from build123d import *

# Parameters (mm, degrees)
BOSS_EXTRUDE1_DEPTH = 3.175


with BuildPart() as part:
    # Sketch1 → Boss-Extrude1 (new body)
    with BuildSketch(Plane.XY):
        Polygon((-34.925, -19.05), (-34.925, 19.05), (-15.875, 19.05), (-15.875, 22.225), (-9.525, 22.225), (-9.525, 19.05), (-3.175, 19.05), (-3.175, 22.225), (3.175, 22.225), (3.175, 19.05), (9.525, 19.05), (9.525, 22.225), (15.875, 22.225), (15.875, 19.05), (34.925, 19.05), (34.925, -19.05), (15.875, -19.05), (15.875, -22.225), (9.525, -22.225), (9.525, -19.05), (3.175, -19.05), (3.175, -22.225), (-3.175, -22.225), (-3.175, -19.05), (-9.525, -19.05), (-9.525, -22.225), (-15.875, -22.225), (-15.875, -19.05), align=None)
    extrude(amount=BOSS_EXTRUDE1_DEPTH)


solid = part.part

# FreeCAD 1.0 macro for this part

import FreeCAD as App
import Part
import Sketcher
Q = App.Units.Quantity

doc = App.newDocument("Part")
body = doc.addObject("PartDesign::Body", "Body")

# Sketch on XY plane
sketch1 = body.newObject("Sketcher::SketchObject", "Sketch")
sketch1.AttachmentSupport = (doc.getObject("XY_Plane"), [""])
sketch1.MapMode = "FlatFace"
sketch1.addGeometry([
    Part.LineSegment(App.Vector(-34.925, 19.05, 0), App.Vector(-34.925, -19.05, 0)),  # 0
    Part.LineSegment(App.Vector(-34.925, -19.05, 0), App.Vector(-15.875, -19.05, 0)),  # 1
    Part.LineSegment(App.Vector(-15.875, -19.05, 0), App.Vector(-15.875, -22.225, 0)),  # 2
    Part.LineSegment(App.Vector(-15.875, -22.225, 0), App.Vector(-9.525, -22.225, 0)),  # 3
    Part.LineSegment(App.Vector(-9.525, -22.225, 0), App.Vector(-9.525, -19.05, 0)),  # 4
    Part.LineSegment(App.Vector(-9.525, -19.05, 0), App.Vector(-3.175, -19.05, 0)),  # 5
    Part.LineSegment(App.Vector(-3.175, -19.05, 0), App.Vector(-3.175, -22.225, 0)),  # 6
    Part.LineSegment(App.Vector(-3.175, -22.225, 0), App.Vector(3.175, -22.225, 0)),  # 7
    Part.LineSegment(App.Vector(3.175, -22.225, 0), App.Vector(3.175, -19.05, 0)),  # 8
    Part.LineSegment(App.Vector(3.175, -19.05, 0), App.Vector(9.525, -19.05, 0)),  # 9
    Part.LineSegment(App.Vector(9.525, -19.05, 0), App.Vector(9.525, -22.225, 0)),  # 10
    Part.LineSegment(App.Vector(9.525, -22.225, 0), App.Vector(15.875, -22.225, 0)),  # 11
    Part.LineSegment(App.Vector(15.875, -22.225, 0), App.Vector(15.875, -19.05, 0)),  # 12
    Part.LineSegment(App.Vector(15.875, -19.05, 0), App.Vector(34.925, -19.05, 0)),  # 13
    Part.LineSegment(App.Vector(34.925, -19.05, 0), App.Vector(34.925, 19.05, 0)),  # 14
    Part.LineSegment(App.Vector(34.925, 19.05, 0), App.Vector(15.875, 19.05, 0)),  # 15
    Part.LineSegment(App.Vector(15.875, 19.05, 0), App.Vector(15.875, 22.225, 0)),  # 16
    Part.LineSegment(App.Vector(15.875, 22.225, 0), App.Vector(9.525, 22.225, 0)),  # 17
    Part.LineSegment(App.Vector(9.525, 22.225, 0), App.Vector(9.525, 19.05, 0)),  # 18
    Part.LineSegment(App.Vector(9.525, 19.05, 0), App.Vector(3.175, 19.05, 0)),  # 19
    Part.LineSegment(App.Vector(3.175, 19.05, 0), App.Vector(3.175, 22.225, 0)),  # 20
    Part.LineSegment(App.Vector(3.175, 22.225, 0), App.Vector(-3.175, 22.225, 0)),  # 21
    Part.LineSegment(App.Vector(-3.175, 22.225, 0), App.Vector(-3.175, 19.05, 0)),  # 22
    Part.LineSegment(App.Vector(-3.175, 19.05, 0), App.Vector(-9.525, 19.05, 0)),  # 23
    Part.LineSegment(App.Vector(-9.525, 19.05, 0), App.Vector(-9.525, 22.225, 0)),  # 24
    Part.LineSegment(App.Vector(-9.525, 22.225, 0), App.Vector(-15.875, 22.225, 0)),  # 25
    Part.LineSegment(App.Vector(-15.875, 22.225, 0), App.Vector(-15.875, 19.05, 0)),  # 26
    Part.LineSegment(App.Vector(-15.875, 19.05, 0), App.Vector(-34.925, 19.05, 0)),  # 27
], False)
sketch1.addConstraint([
    Sketcher.Constraint("Coincident", 0, 2, 1, 1),
    Sketcher.Constraint("Coincident", 1, 2, 2, 1),
    Sketcher.Constraint("Coincident", 2, 2, 3, 1),
    Sketcher.Constraint("Coincident", 3, 2, 4, 1),
    Sketcher.Constraint("Coincident", 4, 2, 5, 1),
    Sketcher.Constraint("Coincident", 5, 2, 6, 1),
    Sketcher.Constraint("Coincident", 6, 2, 7, 1),
    Sketcher.Constraint("Coincident", 7, 2, 8, 1),
    Sketcher.Constraint("Coincident", 8, 2, 9, 1),
    Sketcher.Constraint("Coincident", 9, 2, 10, 1),
    Sketcher.Constraint("Coincident", 10, 2, 11, 1),
    Sketcher.Constraint("Coincident", 11, 2, 12, 1),
    Sketcher.Constraint("Coincident", 12, 2, 13, 1),
    Sketcher.Constraint("Coincident", 13, 2, 14, 1),
    Sketcher.Constraint("Coincident", 14, 2, 15, 1),
    Sketcher.Constraint("Coincident", 15, 2, 16, 1),
    Sketcher.Constraint("Coincident", 16, 2, 17, 1),
    Sketcher.Constraint("Coincident", 17, 2, 18, 1),
    Sketcher.Constraint("Coincident", 18, 2, 19, 1),
    Sketcher.Constraint("Coincident", 19, 2, 20, 1),
    Sketcher.Constraint("Coincident", 20, 2, 21, 1),
    Sketcher.Constraint("Coincident", 21, 2, 22, 1),
    Sketcher.Constraint("Coincident", 22, 2, 23, 1),
    Sketcher.Constraint("Coincident", 23, 2, 24, 1),
    Sketcher.Constraint("Coincident", 24, 2, 25, 1),
    Sketcher.Constraint("Coincident", 25, 2, 26, 1),
    Sketcher.Constraint("Coincident", 26, 2, 27, 1),
    Sketcher.Constraint("Coincident", 27, 2, 0, 1),
    Sketcher.Constraint("Vertical", 0),
    Sketcher.Constraint("Horizontal", 1),
    Sketcher.Constraint("Vertical", 2),
    Sketcher.Constraint("Horizontal", 3),
    Sketcher.Constraint("Vertical", 4),
    Sketcher.Constraint("Horizontal", 5),
    Sketcher.Constraint("Vertical", 6),
    Sketcher.Constraint("Horizontal", 7),
    Sketcher.Constraint("Vertical", 8),
    Sketcher.Constraint("Horizontal", 9),
    Sketcher.Constraint("Vertical", 10),
    Sketcher.Constraint("Horizontal", 11),
    Sketcher.Constraint("Vertical", 12),
    Sketcher.Constraint("Horizontal", 13),
    Sketcher.Constraint("Vertical", 14),
    Sketcher.Constraint("Horizontal", 15),
    Sketcher.Constraint("Vertical", 16),
    Sketcher.Constraint("Horizontal", 17),
    Sketcher.Constraint("Vertical", 18),
    Sketcher.Constraint("Horizontal", 19),
    Sketcher.Constraint("Vertical", 20),
    Sketcher.Constraint("Horizontal", 21),
    Sketcher.Constraint("Vertical", 22),
    Sketcher.Constraint("Horizontal", 23),
    Sketcher.Constraint("Vertical", 24),
    Sketcher.Constraint("Horizontal", 25),
    Sketcher.Constraint("Vertical", 26),
    Sketcher.Constraint("Horizontal", 27),
    Sketcher.Constraint("Symmetric", 0, 2, 14, 2, -1, 1),
    Sketcher.Constraint("Symmetric", 2, 2, 16, 2, -1, 1),
    Sketcher.Constraint("Symmetric", 4, 2, 18, 2, -1, 1),
    Sketcher.Constraint("Symmetric", 6, 2, 20, 2, -1, 1),
    Sketcher.Constraint("Symmetric", 8, 2, 22, 2, -1, 1),
    Sketcher.Constraint("Symmetric", 10, 2, 24, 2, -1, 1),
    Sketcher.Constraint("Symmetric", 12, 2, 26, 2, -1, 1),
    Sketcher.Constraint("Symmetric", 5, 2, 8, 2, -2),
    Sketcher.Constraint("Symmetric", 3, 2, 10, 2, -2),
    Sketcher.Constraint("Symmetric", 1, 2, 12, 2, -2),
    Sketcher.Constraint("Horizontal", 1, 2, 4, 2),
    Sketcher.Constraint("Horizontal", 3, 2, 6, 2),
    Sketcher.Constraint("Equal", 3, 5),
    Sketcher.Constraint("Equal", 5, 7),
    Sketcher.Constraint("DistanceY", 0, 2, 0, 1, Q("1.5 in")),
    Sketcher.Constraint("DistanceX", 0, 2, 3, 2, Q("1 in")),
    Sketcher.Constraint("DistanceX", 1, 1, 1, 2, Q("0.75 in")),
    Sketcher.Constraint("DistanceY", 2, 2, 2, 1, Q("0.125 in")),
])
pad1 = body.newObject("PartDesign::Pad", "Pad")
pad1.Profile = sketch1
pad1.Length = Q("0.125 in")

doc.recompute()
